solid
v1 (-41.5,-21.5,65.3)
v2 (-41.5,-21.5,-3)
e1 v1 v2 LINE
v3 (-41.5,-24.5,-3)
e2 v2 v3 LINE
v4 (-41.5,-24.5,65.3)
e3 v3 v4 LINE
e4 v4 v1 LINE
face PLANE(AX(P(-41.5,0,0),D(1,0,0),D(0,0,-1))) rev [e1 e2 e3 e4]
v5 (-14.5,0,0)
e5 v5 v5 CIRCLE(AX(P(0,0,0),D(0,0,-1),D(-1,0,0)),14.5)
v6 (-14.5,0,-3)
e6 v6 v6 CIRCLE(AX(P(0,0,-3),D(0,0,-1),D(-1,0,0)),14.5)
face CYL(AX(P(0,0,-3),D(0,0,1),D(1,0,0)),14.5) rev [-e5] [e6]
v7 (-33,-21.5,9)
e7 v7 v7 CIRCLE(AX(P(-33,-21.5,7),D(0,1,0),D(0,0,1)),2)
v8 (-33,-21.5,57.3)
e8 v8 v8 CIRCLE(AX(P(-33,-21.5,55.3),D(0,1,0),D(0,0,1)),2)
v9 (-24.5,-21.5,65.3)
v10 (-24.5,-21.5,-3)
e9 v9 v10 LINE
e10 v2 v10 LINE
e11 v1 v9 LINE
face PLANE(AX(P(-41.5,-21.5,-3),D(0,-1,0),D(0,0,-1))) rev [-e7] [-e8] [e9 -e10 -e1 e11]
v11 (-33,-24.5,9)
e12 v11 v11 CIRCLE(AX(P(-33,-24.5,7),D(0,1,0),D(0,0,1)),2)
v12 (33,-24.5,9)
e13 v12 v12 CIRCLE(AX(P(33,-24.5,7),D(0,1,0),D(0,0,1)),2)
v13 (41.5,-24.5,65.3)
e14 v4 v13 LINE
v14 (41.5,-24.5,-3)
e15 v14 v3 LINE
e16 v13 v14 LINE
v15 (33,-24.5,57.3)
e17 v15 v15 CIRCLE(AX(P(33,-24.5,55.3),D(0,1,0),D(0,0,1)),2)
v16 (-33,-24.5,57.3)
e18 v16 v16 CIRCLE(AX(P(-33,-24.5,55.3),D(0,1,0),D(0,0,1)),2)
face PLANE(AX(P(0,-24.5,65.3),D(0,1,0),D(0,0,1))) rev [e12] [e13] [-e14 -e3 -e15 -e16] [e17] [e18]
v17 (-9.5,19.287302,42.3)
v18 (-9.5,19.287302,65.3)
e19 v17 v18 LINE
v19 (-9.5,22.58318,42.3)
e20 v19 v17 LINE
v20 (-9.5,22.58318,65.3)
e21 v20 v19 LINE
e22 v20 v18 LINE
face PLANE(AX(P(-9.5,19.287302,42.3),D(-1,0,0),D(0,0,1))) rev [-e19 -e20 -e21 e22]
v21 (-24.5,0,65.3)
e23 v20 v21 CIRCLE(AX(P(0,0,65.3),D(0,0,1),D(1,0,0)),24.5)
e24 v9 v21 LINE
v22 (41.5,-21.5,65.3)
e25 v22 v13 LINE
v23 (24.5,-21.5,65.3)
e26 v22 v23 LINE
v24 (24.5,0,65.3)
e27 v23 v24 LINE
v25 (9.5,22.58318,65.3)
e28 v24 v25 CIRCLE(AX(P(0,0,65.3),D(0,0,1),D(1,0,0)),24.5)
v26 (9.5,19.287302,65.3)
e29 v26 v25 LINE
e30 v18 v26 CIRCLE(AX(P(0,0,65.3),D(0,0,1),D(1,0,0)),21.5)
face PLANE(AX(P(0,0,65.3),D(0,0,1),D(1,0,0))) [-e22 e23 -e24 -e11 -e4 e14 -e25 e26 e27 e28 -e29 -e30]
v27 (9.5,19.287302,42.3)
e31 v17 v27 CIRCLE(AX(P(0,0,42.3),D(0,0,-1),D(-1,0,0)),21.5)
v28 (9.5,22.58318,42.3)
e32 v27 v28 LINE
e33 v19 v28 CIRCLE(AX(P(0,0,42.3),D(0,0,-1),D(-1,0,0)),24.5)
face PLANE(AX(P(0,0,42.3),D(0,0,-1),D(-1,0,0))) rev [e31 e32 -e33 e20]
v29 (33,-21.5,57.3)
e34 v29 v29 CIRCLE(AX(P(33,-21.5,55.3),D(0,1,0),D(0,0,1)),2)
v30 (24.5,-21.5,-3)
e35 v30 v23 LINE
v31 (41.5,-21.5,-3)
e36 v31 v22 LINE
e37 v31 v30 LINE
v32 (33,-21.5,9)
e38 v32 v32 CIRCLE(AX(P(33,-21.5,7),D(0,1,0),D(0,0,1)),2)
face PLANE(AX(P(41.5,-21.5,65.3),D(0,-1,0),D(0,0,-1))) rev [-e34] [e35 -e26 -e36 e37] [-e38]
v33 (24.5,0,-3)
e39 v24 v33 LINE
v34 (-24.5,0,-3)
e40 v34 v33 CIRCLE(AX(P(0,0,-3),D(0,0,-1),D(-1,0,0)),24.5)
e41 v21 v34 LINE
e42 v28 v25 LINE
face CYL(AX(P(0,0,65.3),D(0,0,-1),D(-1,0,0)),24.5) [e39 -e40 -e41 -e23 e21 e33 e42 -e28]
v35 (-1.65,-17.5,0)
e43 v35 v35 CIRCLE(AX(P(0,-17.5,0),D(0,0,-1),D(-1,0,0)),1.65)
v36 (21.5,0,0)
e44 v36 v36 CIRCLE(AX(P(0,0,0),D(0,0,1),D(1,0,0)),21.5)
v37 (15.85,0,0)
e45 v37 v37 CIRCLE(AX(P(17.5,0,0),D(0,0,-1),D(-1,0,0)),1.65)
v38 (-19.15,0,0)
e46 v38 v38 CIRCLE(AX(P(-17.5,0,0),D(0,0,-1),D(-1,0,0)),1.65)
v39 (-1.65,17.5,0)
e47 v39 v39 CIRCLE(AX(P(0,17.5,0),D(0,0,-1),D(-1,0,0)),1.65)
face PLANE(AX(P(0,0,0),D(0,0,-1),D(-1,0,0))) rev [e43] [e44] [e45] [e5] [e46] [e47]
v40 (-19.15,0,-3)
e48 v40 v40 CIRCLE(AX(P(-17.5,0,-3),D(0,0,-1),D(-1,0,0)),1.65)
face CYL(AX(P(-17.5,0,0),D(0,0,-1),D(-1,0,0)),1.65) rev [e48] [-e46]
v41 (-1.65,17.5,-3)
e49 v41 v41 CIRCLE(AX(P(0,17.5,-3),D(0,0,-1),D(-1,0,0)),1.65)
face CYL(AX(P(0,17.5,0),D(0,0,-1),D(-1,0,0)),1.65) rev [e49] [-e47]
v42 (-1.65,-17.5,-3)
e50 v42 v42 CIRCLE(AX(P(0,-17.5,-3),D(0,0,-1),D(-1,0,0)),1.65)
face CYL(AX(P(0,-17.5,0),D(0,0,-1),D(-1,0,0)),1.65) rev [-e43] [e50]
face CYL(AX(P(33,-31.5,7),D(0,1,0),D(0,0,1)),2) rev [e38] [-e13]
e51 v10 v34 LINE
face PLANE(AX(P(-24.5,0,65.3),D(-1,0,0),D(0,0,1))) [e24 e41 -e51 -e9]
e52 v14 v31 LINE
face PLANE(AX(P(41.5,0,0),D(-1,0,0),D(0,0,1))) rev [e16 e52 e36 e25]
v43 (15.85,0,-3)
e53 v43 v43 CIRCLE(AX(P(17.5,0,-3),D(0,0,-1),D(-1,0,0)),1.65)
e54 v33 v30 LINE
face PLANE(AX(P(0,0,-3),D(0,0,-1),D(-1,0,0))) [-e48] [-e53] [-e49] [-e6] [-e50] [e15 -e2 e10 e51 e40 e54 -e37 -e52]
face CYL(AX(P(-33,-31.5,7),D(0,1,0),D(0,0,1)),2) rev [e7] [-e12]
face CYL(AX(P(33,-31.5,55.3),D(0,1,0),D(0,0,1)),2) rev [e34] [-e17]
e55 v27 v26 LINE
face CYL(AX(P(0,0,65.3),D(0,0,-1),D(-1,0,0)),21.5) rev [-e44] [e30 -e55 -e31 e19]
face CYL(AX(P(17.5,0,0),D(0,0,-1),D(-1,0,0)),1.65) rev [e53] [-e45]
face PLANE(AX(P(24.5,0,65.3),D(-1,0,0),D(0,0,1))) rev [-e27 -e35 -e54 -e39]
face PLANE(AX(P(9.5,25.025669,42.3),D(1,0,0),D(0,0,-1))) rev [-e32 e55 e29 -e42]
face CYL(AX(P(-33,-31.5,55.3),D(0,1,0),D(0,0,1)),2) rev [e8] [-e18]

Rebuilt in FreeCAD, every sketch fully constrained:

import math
import FreeCAD as App
import Part
import Sketcher


def add_polygon(sketch, points):
    """Adds a closed chain of lines whose ends are joined by coincident constraints."""
    first, n = sketch.GeometryCount, len(points)
    for a, b in zip(points, points[1:] + points[:1]):
        sketch.addGeometry(Part.LineSegment(App.Vector(*a, 0), App.Vector(*b, 0)), False)
    for i in range(n):
        sketch.addConstraint(Sketcher.Constraint("Coincident", first + i, 2, first + (i + 1) % n, 1))

doc = App.newDocument("Part")
body = doc.addObject("PartDesign::Body", "Body")

sketch1 = body.newObject("Sketcher::SketchObject", "Sketch")
sketch1.AttachmentSupport = (doc.getObject("XY_Plane"), [""])
sketch1.MapMode = "FlatFace"
sketch1.addGeometry([
    Part.LineSegment(App.Vector(-24, 0, 0), App.Vector(-24, -24, 0)),
    Part.LineSegment(App.Vector(-24, -24, 0), App.Vector(24, -24, 0)),
    Part.LineSegment(App.Vector(24, -24, 0), App.Vector(24, 0, 0)),
    Part.ArcOfCircle(Part.Circle(App.Vector(0, 0, 0), App.Vector(0, 0, 1), 24), math.radians(0), math.radians(180)),
    Part.Circle(App.Vector(0, 0, 0), App.Vector(0, 0, 1), 22),
], False)
sketch1.addConstraint([
    Sketcher.Constraint("Coincident", 0, 2, 1, 1),
    Sketcher.Constraint("Coincident", 1, 2, 2, 1),
    Sketcher.Constraint("Tangent", 2, 2, 3, 1),
    Sketcher.Constraint("Tangent", 3, 2, 0, 1),
    Sketcher.Constraint("Vertical", 0),
    Sketcher.Constraint("Horizontal", 1),
    Sketcher.Constraint("Vertical", 2),
    Sketcher.Constraint("Coincident", 3, 3, -1, 1),
    Sketcher.Constraint("Coincident", 4, 3, -1, 1),
    Sketcher.Constraint("Diameter", 4, 43.0),
    Sketcher.Constraint("Radius", 3, 24.5),
    Sketcher.Constraint("DistanceY", 0, 2, 0, 1, 24.5),
])
pad1 = body.newObject("PartDesign::Pad", "Pad")
pad1.Profile = sketch1
pad1.Length = 65.3

sketch2 = body.newObject("Sketcher::SketchObject", "Sketch001")
sketch2.AttachmentSupport = (doc.getObject("XY_Plane"), [""])
sketch2.MapMode = "FlatFace"
sketch2.addGeometry([
    Part.ArcOfCircle(Part.Circle(App.Vector(0, 0, 0), App.Vector(0, 0, 1), 24), math.radians(0), math.radians(180)),
    Part.LineSegment(App.Vector(24, 0, 0), App.Vector(24, -24, 0)),
    Part.LineSegment(App.Vector(24, -24, 0), App.Vector(-24, -24, 0)),
    Part.LineSegment(App.Vector(-24, -24, 0), App.Vector(-24, 0, 0)),
    Part.Circle(App.Vector(0, 0, 0), App.Vector(0, 0, 1), 14),
], False)
sketch2.addConstraint([
    Sketcher.Constraint("Tangent", 0, 1, 1, 1),
    Sketcher.Constraint("Coincident", 1, 2, 2, 1),
    Sketcher.Constraint("Coincident", 2, 2, 3, 1),
    Sketcher.Constraint("Tangent", 3, 2, 0, 2),
    Sketcher.Constraint("Vertical", 1),
    Sketcher.Constraint("Horizontal", 2),
    Sketcher.Constraint("Vertical", 3),
    Sketcher.Constraint("Coincident", 0, 3, -1, 1),
    Sketcher.Constraint("Coincident", 4, 3, -1, 1),
    Sketcher.Constraint("Diameter", 4, 29.0),
    Sketcher.Constraint("Radius", 0, 24.5),
    Sketcher.Constraint("DistanceY", 1, 2, 1, 1, 24.5),
])
pad2 = body.newObject("PartDesign::Pad", "Pad001")
pad2.Profile = sketch2
pad2.Length = 3
pad2.Reversed = True

sketch3 = body.newObject("Sketcher::SketchObject", "Sketch002")
sketch3.AttachmentSupport = (doc.getObject("XY_Plane"), [""])
sketch3.MapMode = "FlatFace"
sketch3.AttachmentOffset = App.Placement(App.Vector(0, 0, -3), App.Rotation())
sketch3.addGeometry([
    Part.Circle(App.Vector(17.5, 0, 0), App.Vector(0, 0, 1), 1.6),
    Part.Circle(App.Vector(-17.5, 0, 0), App.Vector(0, 0, 1), 1.6),
    Part.Circle(App.Vector(0, 17.5, 0), App.Vector(0, 0, 1), 1.6),
    Part.Circle(App.Vector(0, -17.5, 0), App.Vector(0, 0, 1), 1.6),
], False)
sketch3.addConstraint([
    Sketcher.Constraint("Equal", 0, 1),
    Sketcher.Constraint("Equal", 1, 2),
    Sketcher.Constraint("Equal", 2, 3),
    Sketcher.Constraint("Symmetric", 0, 3, 1, 3, -1, 1),
    Sketcher.Constraint("Symmetric", 2, 3, 3, 3, -1, 1),
    Sketcher.Constraint("PointOnObject", 0, 3, -1),
    Sketcher.Constraint("PointOnObject", 2, 3, -2),
    Sketcher.Constraint("Diameter", 0, 3.3),
    Sketcher.Constraint("DistanceX", 1, 3, 0, 3, 35.0),
    Sketcher.Constraint("DistanceY", 3, 3, 2, 3, 35.0),
])
pocket1 = body.newObject("PartDesign::Pocket", "Pocket")
pocket1.Profile = sketch3
pocket1.Length = 3
pocket1.Reversed = True

sketch4 = body.newObject("Sketcher::SketchObject", "Sketch003")
sketch4.AttachmentSupport = (doc.getObject("XY_Plane"), [""])
sketch4.MapMode = "FlatFace"
sketch4.AttachmentOffset = App.Placement(App.Vector(0, 0, 65.3), App.Rotation())
add_polygon(sketch4, [(-10, 25), (-10, 19), (10, 19), (10, 25)])
sketch4.addConstraint([
    Sketcher.Constraint("Vertical", 0),
    Sketcher.Constraint("Horizontal", 1),
    Sketcher.Constraint("Vertical", 2),
    Sketcher.Constraint("Horizontal", 3),
    Sketcher.Constraint("DistanceX", 1, 1, 1, 2, 19.0),
    Sketcher.Constraint("DistanceX", 0, 2, -1, 1, 9.5),
    Sketcher.Constraint("DistanceY", -1, 1, 0, 2, 19.287302),
    Sketcher.Constraint("DistanceY", 0, 2, 0, 1, 5.738367),
])
pocket2 = body.newObject("PartDesign::Pocket", "Pocket001")
pocket2.Profile = sketch4
pocket2.Length = 23

sketch5 = body.newObject("Sketcher::SketchObject", "Sketch004")
sketch5.AttachmentSupport = (doc.getObject("YZ_Plane"), [""])
sketch5.MapMode = "FlatFace"
sketch5.AttachmentOffset = App.Placement(App.Vector(0, 0, -24.5), App.Rotation())
add_polygon(sketch5, [(-21.5, -3), (-24.5, -3), (-24.5, 65.3), (-21.5, 65.3)])
sketch5.addConstraint([
    Sketcher.Constraint("Horizontal", 0),
    Sketcher.Constraint("Vertical", 1),
    Sketcher.Constraint("Horizontal", 2),
    Sketcher.Constraint("Vertical", 3),
    Sketcher.Constraint("DistanceX", 0, 2, 0, 1, 3.0),
    Sketcher.Constraint("DistanceY", 1, 1, 1, 2, 68.3),
    Sketcher.Constraint("DistanceY", 0, 2, -1, 1, 3.0),
    Sketcher.Constraint("DistanceX", 0, 2, -1, 1, 24.5),
])
pad3 = body.newObject("PartDesign::Pad", "Pad002")
pad3.Profile = sketch5
pad3.Length = 17
pad3.Reversed = True

sketch6 = body.newObject("Sketcher::SketchObject", "Sketch005")
sketch6.AttachmentSupport = (doc.getObject("YZ_Plane"), [""])
sketch6.MapMode = "FlatFace"
sketch6.AttachmentOffset = App.Placement(App.Vector(0, 0, 24.5), App.Rotation())
add_polygon(sketch6, [(-21.5, 65.3), (-24.5, 65.3), (-24.5, -3), (-21.5, -3)])
sketch6.addConstraint([
    Sketcher.Constraint("Horizontal", 0),
    Sketcher.Constraint("Vertical", 1),
    Sketcher.Constraint("Horizontal", 2),
    Sketcher.Constraint("Vertical", 3),
    Sketcher.Constraint("DistanceX", 0, 2, 0, 1, 3.0),
    Sketcher.Constraint("DistanceY", 1, 2, 1, 1, 68.3),
    Sketcher.Constraint("DistanceY", 1, 2, -1, 1, 3.0),
    Sketcher.Constraint("DistanceX", 0, 2, -1, 1, 24.5),
])
pad4 = body.newObject("PartDesign::Pad", "Pad003")
pad4.Profile = sketch6
pad4.Length = 17

sketch7 = body.newObject("Sketcher::SketchObject", "Sketch006")
sketch7.AttachmentSupport = (doc.getObject("XZ_Plane"), [""])
sketch7.MapMode = "FlatFace"
sketch7.AttachmentOffset = App.Placement(App.Vector(0, 0, 21.5), App.Rotation())
sketch7.addGeometry([
    Part.Circle(App.Vector(-33, 7, 0), App.Vector(0, 0, 1), 2),
    Part.Circle(App.Vector(-33, 55.3, 0), App.Vector(0, 0, 1), 2),
], False)
sketch7.addConstraint([
    Sketcher.Constraint("Equal", 0, 1),
    Sketcher.Constraint("Vertical", 0, 3, 1, 3),
    Sketcher.Constraint("Diameter", 0, 4.0),
    Sketcher.Constraint("DistanceX", 0, 3, -1, 1, 33.0),
    Sketcher.Constraint("DistanceY", -1, 1, 0, 3, 7.0),
    Sketcher.Constraint("DistanceY", -1, 1, 1, 3, 55.3),
])
pocket3 = body.newObject("PartDesign::Pocket", "Pocket002")
pocket3.Profile = sketch7
pocket3.Length = 10
pocket3.Reversed = True

sketch8 = body.newObject("Sketcher::SketchObject", "Sketch007")
sketch8.AttachmentSupport = (doc.getObject("XZ_Plane"), [""])
sketch8.MapMode = "FlatFace"
sketch8.AttachmentOffset = App.Placement(App.Vector(0, 0, 21.5), App.Rotation())
sketch8.addGeometry([
    Part.Circle(App.Vector(33, 7, 0), App.Vector(0, 0, 1), 2),
    Part.Circle(App.Vector(33, 55.3, 0), App.Vector(0, 0, 1), 2),
], False)
sketch8.addConstraint([
    Sketcher.Constraint("Equal", 0, 1),
    Sketcher.Constraint("Vertical", 0, 3, 1, 3),
    Sketcher.Constraint("Diameter", 0, 4.0),
    Sketcher.Constraint("DistanceX", -1, 1, 0, 3, 33.0),
    Sketcher.Constraint("DistanceY", -1, 1, 0, 3, 7.0),
    Sketcher.Constraint("DistanceY", -1, 1, 1, 3, 55.3),
])
pocket4 = body.newObject("PartDesign::Pocket", "Pocket003")
pocket4.Profile = sketch8
pocket4.Length = 10
pocket4.Reversed = True

doc.recompute()
